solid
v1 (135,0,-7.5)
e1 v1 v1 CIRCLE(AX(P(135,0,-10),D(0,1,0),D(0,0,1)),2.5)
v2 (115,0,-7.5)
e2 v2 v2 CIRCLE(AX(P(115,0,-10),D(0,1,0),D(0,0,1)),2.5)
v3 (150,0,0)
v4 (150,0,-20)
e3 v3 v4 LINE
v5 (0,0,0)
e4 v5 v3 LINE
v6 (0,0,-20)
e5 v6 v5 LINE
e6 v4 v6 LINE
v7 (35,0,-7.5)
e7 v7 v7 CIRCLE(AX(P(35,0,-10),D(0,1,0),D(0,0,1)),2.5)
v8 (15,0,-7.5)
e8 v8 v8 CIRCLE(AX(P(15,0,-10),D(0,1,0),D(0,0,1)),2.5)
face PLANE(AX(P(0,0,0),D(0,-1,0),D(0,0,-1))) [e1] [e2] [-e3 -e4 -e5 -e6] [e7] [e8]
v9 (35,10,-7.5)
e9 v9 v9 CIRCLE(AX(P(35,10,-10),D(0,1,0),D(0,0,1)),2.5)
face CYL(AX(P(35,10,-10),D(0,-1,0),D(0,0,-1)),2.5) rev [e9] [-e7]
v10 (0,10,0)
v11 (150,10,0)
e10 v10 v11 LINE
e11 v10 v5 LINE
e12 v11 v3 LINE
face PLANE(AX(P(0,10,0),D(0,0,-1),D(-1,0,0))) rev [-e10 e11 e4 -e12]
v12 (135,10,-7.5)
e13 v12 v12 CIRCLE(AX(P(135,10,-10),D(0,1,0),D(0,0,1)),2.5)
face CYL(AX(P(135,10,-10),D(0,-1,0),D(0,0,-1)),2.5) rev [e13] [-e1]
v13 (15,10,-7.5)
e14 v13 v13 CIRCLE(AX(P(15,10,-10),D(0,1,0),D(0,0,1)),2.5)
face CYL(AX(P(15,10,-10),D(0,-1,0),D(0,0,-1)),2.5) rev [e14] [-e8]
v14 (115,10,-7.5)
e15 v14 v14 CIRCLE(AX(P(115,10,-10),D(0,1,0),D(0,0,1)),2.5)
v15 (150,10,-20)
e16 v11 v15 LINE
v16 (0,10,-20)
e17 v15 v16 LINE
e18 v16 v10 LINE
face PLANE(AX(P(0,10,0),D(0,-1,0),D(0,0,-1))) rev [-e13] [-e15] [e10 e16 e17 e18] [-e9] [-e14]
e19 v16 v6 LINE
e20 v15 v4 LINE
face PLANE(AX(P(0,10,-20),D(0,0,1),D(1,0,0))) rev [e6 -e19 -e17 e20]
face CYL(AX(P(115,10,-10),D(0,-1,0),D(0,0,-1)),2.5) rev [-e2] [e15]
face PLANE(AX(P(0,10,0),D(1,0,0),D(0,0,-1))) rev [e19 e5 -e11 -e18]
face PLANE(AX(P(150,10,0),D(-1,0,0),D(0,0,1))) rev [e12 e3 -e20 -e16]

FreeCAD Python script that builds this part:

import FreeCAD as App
import Part
import Sketcher


def add_polygon(sketch, points):
    """Adds a closed chain of lines whose ends are joined by coincident constraints."""
    first, n = sketch.GeometryCount, len(points)
    for a, b in zip(points, points[1:] + points[:1]):
        sketch.addGeometry(Part.LineSegment(App.Vector(*a, 0), App.Vector(*b, 0)), False)
    for i in range(n):
        sketch.addConstraint(Sketcher.Constraint("Coincident", first + i, 2, first + (i + 1) % n, 1))

doc = App.newDocument("Part")
body = doc.addObject("PartDesign::Body", "Body")

sketch1 = body.newObject("Sketcher::SketchObject", "Sketch")
sketch1.AttachmentSupport = (doc.getObject("XZ_Plane"), [""])
sketch1.MapMode = "FlatFace"
add_polygon(sketch1, [(0, -20), (0, 0), (150, 0), (150, -20)])
sketch1.addGeometry(Part.Circle(App.Vector(15, -10, 0), App.Vector(0, 0, 1), 2.5), False)
sketch1.addGeometry(Part.Circle(App.Vector(35, -10, 0), App.Vector(0, 0, 1), 2.5), False)
sketch1.addGeometry(Part.Circle(App.Vector(115, -10, 0), App.Vector(0, 0, 1), 2.5), False)
sketch1.addGeometry(Part.Circle(App.Vector(135, -10, 0), App.Vector(0, 0, 1), 2.5), False)
sketch1.addConstraint([
    Sketcher.Constraint("Vertical", 0),
    Sketcher.Constraint("Horizontal", 1),
    Sketcher.Constraint("Vertical", 2),
    Sketcher.Constraint("Horizontal", 3),
    Sketcher.Constraint("Coincident", 0, 2, -1, 1),
    Sketcher.Constraint("Equal", 4, 5),
    Sketcher.Constraint("Equal", 5, 6),
    Sketcher.Constraint("Equal", 6, 7),
    Sketcher.Constraint("Horizontal", 4, 3, 5, 3),
    Sketcher.Constraint("Horizontal", 5, 3, 6, 3),
    Sketcher.Constraint("Horizontal", 6, 3, 7, 3),
    Sketcher.Constraint("Diameter", 4, 5.0),
    Sketcher.Constraint("DistanceX", 1, 1, 1, 2, 150.0),
    Sketcher.Constraint("DistanceY", 0, 1, 0, 2, 20.0),
    Sketcher.Constraint("DistanceX", -1, 1, 4, 3, 15.0),
    Sketcher.Constraint("DistanceY", 4, 3, -1, 1, 10.0),
    Sketcher.Constraint("DistanceX", -1, 1, 5, 3, 35.0),
    Sketcher.Constraint("DistanceX", -1, 1, 6, 3, 115.0),
    Sketcher.Constraint("DistanceX", -1, 1, 7, 3, 135.0),
])
pad1 = body.newObject("PartDesign::Pad", "Pad")
pad1.Profile = sketch1
pad1.Length = 10
pad1.Reversed = True

doc.recompute()
